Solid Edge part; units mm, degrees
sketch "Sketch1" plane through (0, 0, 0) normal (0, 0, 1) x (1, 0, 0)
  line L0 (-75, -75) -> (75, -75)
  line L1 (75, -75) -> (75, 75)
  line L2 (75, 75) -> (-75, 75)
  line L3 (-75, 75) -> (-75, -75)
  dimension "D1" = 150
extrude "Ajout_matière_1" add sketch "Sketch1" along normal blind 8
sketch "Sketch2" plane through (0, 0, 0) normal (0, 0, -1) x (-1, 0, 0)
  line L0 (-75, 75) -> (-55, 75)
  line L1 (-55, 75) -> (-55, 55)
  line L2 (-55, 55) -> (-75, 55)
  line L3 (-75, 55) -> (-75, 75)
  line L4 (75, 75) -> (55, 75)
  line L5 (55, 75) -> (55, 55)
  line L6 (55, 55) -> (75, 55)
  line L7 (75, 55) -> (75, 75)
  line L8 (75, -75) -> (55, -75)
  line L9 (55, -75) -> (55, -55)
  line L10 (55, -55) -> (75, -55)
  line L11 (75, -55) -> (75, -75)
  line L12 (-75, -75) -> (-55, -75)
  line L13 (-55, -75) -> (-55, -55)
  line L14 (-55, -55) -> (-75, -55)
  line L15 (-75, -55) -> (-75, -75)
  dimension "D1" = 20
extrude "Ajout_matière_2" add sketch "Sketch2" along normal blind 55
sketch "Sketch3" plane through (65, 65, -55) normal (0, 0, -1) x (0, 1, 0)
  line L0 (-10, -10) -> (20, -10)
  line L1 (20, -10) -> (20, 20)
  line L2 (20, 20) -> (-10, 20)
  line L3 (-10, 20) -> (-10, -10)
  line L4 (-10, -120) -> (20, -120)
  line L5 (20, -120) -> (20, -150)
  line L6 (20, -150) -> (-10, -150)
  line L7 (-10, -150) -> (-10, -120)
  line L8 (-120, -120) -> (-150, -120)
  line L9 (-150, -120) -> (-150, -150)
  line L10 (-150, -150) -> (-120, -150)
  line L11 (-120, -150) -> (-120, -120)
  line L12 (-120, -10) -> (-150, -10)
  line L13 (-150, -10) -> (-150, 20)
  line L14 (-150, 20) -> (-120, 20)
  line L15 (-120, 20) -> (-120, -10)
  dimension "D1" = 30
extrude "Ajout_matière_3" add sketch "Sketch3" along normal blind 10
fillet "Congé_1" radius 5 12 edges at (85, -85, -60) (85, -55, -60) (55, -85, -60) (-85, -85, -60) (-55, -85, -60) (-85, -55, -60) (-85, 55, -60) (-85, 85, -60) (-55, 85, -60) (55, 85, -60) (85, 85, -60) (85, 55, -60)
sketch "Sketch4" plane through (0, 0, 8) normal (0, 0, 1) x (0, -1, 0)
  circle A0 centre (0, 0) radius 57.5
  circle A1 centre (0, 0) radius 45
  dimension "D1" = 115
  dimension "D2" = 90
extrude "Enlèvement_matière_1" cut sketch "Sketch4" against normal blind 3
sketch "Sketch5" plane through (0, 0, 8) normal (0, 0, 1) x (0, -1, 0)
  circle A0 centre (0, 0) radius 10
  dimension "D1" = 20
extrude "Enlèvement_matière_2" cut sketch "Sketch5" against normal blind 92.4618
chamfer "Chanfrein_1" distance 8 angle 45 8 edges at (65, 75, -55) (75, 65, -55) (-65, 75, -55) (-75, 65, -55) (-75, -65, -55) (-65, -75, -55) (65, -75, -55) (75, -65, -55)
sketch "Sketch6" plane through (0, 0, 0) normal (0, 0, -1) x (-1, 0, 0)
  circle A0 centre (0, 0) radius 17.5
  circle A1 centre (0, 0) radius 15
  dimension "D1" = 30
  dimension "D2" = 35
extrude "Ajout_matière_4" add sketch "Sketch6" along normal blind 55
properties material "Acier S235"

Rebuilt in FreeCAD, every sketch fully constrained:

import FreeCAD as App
import Part
import Sketcher
Q = App.Units.Quantity


def edges_at(feature, points):
    """Names of the edges that pass closest to the given points."""
    edges = feature.Shape.Edges
    near = lambda p: min(range(len(edges)), key=lambda i: edges[i].distToShape(Part.Vertex(*p))[0])
    return sorted({f"Edge{near(p) + 1}" for p in points})

doc = App.newDocument("Part")
body = doc.addObject("PartDesign::Body", "Body")

sketch1 = doc.addObject("Sketcher::SketchObject", "Sketch")
body.addObject(sketch1)
sketch1.AttachmentSupport = (doc.XY_Plane, [""])
sketch1.MapMode = "FlatFace"
sketch1.addGeometry(Part.LineSegment(App.Vector(-75, 75, 0), App.Vector(-75, -75, 0)), False)
sketch1.addGeometry(Part.LineSegment(App.Vector(-75, -75, 0), App.Vector(75, -75, 0)), False)
sketch1.addGeometry(Part.LineSegment(App.Vector(75, -75, 0), App.Vector(75, 75, 0)), False)
sketch1.addGeometry(Part.LineSegment(App.Vector(75, 75, 0), App.Vector(-75, 75, 0)), False)
sketch1.addConstraint(Sketcher.Constraint("Coincident", 0, 2, 1, 1))
sketch1.addConstraint(Sketcher.Constraint("Coincident", 1, 2, 2, 1))
sketch1.addConstraint(Sketcher.Constraint("Coincident", 2, 2, 3, 1))
sketch1.addConstraint(Sketcher.Constraint("Coincident", 3, 2, 0, 1))
sketch1.addConstraint(Sketcher.Constraint("Vertical", 0))
sketch1.addConstraint(Sketcher.Constraint("Horizontal", 1))
sketch1.addConstraint(Sketcher.Constraint("Vertical", 2))
sketch1.addConstraint(Sketcher.Constraint("Horizontal", 3))
sketch1.addConstraint(Sketcher.Constraint("Symmetric", 0, 2, 2, 2, -1, 1))
sketch1.addConstraint(Sketcher.Constraint("Equal", 3, 0))
sketch1.addConstraint(Sketcher.Constraint("DistanceX", 0, 2, -1, 1, Q("75 mm")))
pad1 = doc.addObject("PartDesign::Pad", "Pad")
body.addObject(pad1)
pad1.Profile = sketch1
pad1.Length = 8

sketch2 = doc.addObject("Sketcher::SketchObject", "Sketch001")
body.addObject(sketch2)
sketch2.AttachmentSupport = (doc.XY_Plane, [""])
sketch2.MapMode = "FlatFace"
sketch2.addGeometry(Part.LineSegment(App.Vector(55, 75, 0), App.Vector(75, 75, 0)), False)
sketch2.addGeometry(Part.LineSegment(App.Vector(75, 75, 0), App.Vector(75, 55, 0)), False)
sketch2.addGeometry(Part.LineSegment(App.Vector(75, 55, 0), App.Vector(55, 55, 0)), False)
sketch2.addGeometry(Part.LineSegment(App.Vector(55, 55, 0), App.Vector(55, 75, 0)), False)
sketch2.addGeometry(Part.LineSegment(App.Vector(-75, 55, 0), App.Vector(-75, 75, 0)), False)
sketch2.addGeometry(Part.LineSegment(App.Vector(-75, 75, 0), App.Vector(-55, 75, 0)), False)
sketch2.addGeometry(Part.LineSegment(App.Vector(-55, 75, 0), App.Vector(-55, 55, 0)), False)
sketch2.addGeometry(Part.LineSegment(App.Vector(-55, 55, 0), App.Vector(-75, 55, 0)), False)
sketch2.addGeometry(Part.LineSegment(App.Vector(-55, -75, 0), App.Vector(-75, -75, 0)), False)
sketch2.addGeometry(Part.LineSegment(App.Vector(-75, -75, 0), App.Vector(-75, -55, 0)), False)
sketch2.addGeometry(Part.LineSegment(App.Vector(-75, -55, 0), App.Vector(-55, -55, 0)), False)
sketch2.addGeometry(Part.LineSegment(App.Vector(-55, -55, 0), App.Vector(-55, -75, 0)), False)
sketch2.addGeometry(Part.LineSegment(App.Vector(75, -55, 0), App.Vector(75, -75, 0)), False)
sketch2.addGeometry(Part.LineSegment(App.Vector(75, -75, 0), App.Vector(55, -75, 0)), False)
sketch2.addGeometry(Part.LineSegment(App.Vector(55, -75, 0), App.Vector(55, -55, 0)), False)
sketch2.addGeometry(Part.LineSegment(App.Vector(55, -55, 0), App.Vector(75, -55, 0)), False)
sketch2.addConstraint(Sketcher.Constraint("Coincident", 0, 2, 1, 1))
sketch2.addConstraint(Sketcher.Constraint("Coincident", 1, 2, 2, 1))
sketch2.addConstraint(Sketcher.Constraint("Coincident", 2, 2, 3, 1))
sketch2.addConstraint(Sketcher.Constraint("Coincident", 3, 2, 0, 1))
sketch2.addConstraint(Sketcher.Constraint("Coincident", 4, 2, 5, 1))
sketch2.addConstraint(Sketcher.Constraint("Coincident", 5, 2, 6, 1))
sketch2.addConstraint(Sketcher.Constraint("Coincident", 6, 2, 7, 1))
sketch2.addConstraint(Sketcher.Constraint("Coincident", 7, 2, 4, 1))
sketch2.addConstraint(Sketcher.Constraint("Coincident", 8, 2, 9, 1))
sketch2.addConstraint(Sketcher.Constraint("Coincident", 9, 2, 10, 1))
sketch2.addConstraint(Sketcher.Constraint("Coincident", 10, 2, 11, 1))
sketch2.addConstraint(Sketcher.Constraint("Coincident", 11, 2, 8, 1))
sketch2.addConstraint(Sketcher.Constraint("Coincident", 12, 2, 13, 1))
sketch2.addConstraint(Sketcher.Constraint("Coincident", 13, 2, 14, 1))
sketch2.addConstraint(Sketcher.Constraint("Coincident", 14, 2, 15, 1))
sketch2.addConstraint(Sketcher.Constraint("Coincident", 15, 2, 12, 1))
sketch2.addConstraint(Sketcher.Constraint("Horizontal", 0))
sketch2.addConstraint(Sketcher.Constraint("Vertical", 1))
sketch2.addConstraint(Sketcher.Constraint("Horizontal", 2))
sketch2.addConstraint(Sketcher.Constraint("Vertical", 3))
sketch2.addConstraint(Sketcher.Constraint("Vertical", 4))
sketch2.addConstraint(Sketcher.Constraint("Horizontal", 5))
sketch2.addConstraint(Sketcher.Constraint("Vertical", 6))
sketch2.addConstraint(Sketcher.Constraint("Horizontal", 7))
sketch2.addConstraint(Sketcher.Constraint("Horizontal", 8))
sketch2.addConstraint(Sketcher.Constraint("Vertical", 9))
sketch2.addConstraint(Sketcher.Constraint("Horizontal", 10))
sketch2.addConstraint(Sketcher.Constraint("Vertical", 11))
sketch2.addConstraint(Sketcher.Constraint("Vertical", 12))
sketch2.addConstraint(Sketcher.Constraint("Horizontal", 13))
sketch2.addConstraint(Sketcher.Constraint("Vertical", 14))
sketch2.addConstraint(Sketcher.Constraint("Horizontal", 15))
sketch2.addConstraint(Sketcher.Constraint("Symmetric", 0, 2, 8, 2, -1, 1))
sketch2.addConstraint(Sketcher.Constraint("Symmetric", 2, 2, 10, 2, -1, 1))
sketch2.addConstraint(Sketcher.Constraint("Symmetric", 4, 2, 12, 2, -1, 1))
sketch2.addConstraint(Sketcher.Constraint("Symmetric", 6, 2, 14, 2, -1, 1))
sketch2.addConstraint(Sketcher.Constraint("Symmetric", 0, 2, 4, 2, -2))
sketch2.addConstraint(Sketcher.Constraint("Symmetric", 2, 2, 6, 2, -2))
sketch2.addConstraint(Sketcher.Constraint("Equal", 15, 1))
sketch2.addConstraint(Sketcher.Constraint("DistanceY", -1, 1, 1, 2, Q("55 mm")))
sketch2.addConstraint(Sketcher.Constraint("DistanceX", -1, 1, 2, 2, Q("55 mm")))
sketch2.addConstraint(Sketcher.Constraint("DistanceX", 0, 1, 0, 2, Q("20 mm")))
pad2 = doc.addObject("PartDesign::Pad", "Pad001")
body.addObject(pad2)
pad2.Profile = sketch2
pad2.Length = 55
pad2.Reversed = True

sketch3 = doc.addObject("Sketcher::SketchObject", "Sketch002")
body.addObject(sketch3)
sketch3.AttachmentSupport = (doc.XY_Plane, [""])
sketch3.MapMode = "FlatFace"
sketch3.AttachmentOffset = App.Placement(App.Vector(0, 0, -55), App.Rotation())
sketch3.addGeometry(Part.LineSegment(App.Vector(85, 55, 0), App.Vector(55, 55, 0)), False)
sketch3.addGeometry(Part.LineSegment(App.Vector(55, 55, 0), App.Vector(55, 85, 0)), False)
sketch3.addGeometry(Part.LineSegment(App.Vector(55, 85, 0), App.Vector(85, 85, 0)), False)
sketch3.addGeometry(Part.LineSegment(App.Vector(85, 85, 0), App.Vector(85, 55, 0)), False)
sketch3.addGeometry(Part.LineSegment(App.Vector(-55, 85, 0), App.Vector(-55, 55, 0)), False)
sketch3.addGeometry(Part.LineSegment(App.Vector(-55, 55, 0), App.Vector(-85, 55, 0)), False)
sketch3.addGeometry(Part.LineSegment(App.Vector(-85, 55, 0), App.Vector(-85, 85, 0)), False)
sketch3.addGeometry(Part.LineSegment(App.Vector(-85, 85, 0), App.Vector(-55, 85, 0)), False)
sketch3.addGeometry(Part.LineSegment(App.Vector(-85, -55, 0), App.Vector(-55, -55, 0)), False)
sketch3.addGeometry(Part.LineSegment(App.Vector(-55, -55, 0), App.Vector(-55, -85, 0)), False)
sketch3.addGeometry(Part.LineSegment(App.Vector(-55, -85, 0), App.Vector(-85, -85, 0)), False)
sketch3.addGeometry(Part.LineSegment(App.Vector(-85, -85, 0), App.Vector(-85, -55, 0)), False)
sketch3.addGeometry(Part.LineSegment(App.Vector(55, -85, 0), App.Vector(55, -55, 0)), False)
sketch3.addGeometry(Part.LineSegment(App.Vector(55, -55, 0), App.Vector(85, -55, 0)), False)
sketch3.addGeometry(Part.LineSegment(App.Vector(85, -55, 0), App.Vector(85, -85, 0)), False)
sketch3.addGeometry(Part.LineSegment(App.Vector(85, -85, 0), App.Vector(55, -85, 0)), False)
sketch3.addConstraint(Sketcher.Constraint("Coincident", 0, 2, 1, 1))
sketch3.addConstraint(Sketcher.Constraint("Coincident", 1, 2, 2, 1))
sketch3.addConstraint(Sketcher.Constraint("Coincident", 2, 2, 3, 1))
sketch3.addConstraint(Sketcher.Constraint("Coincident", 3, 2, 0, 1))
sketch3.addConstraint(Sketcher.Constraint("Coincident", 4, 2, 5, 1))
sketch3.addConstraint(Sketcher.Constraint("Coincident", 5, 2, 6, 1))
sketch3.addConstraint(Sketcher.Constraint("Coincident", 6, 2, 7, 1))
sketch3.addConstraint(Sketcher.Constraint("Coincident", 7, 2, 4, 1))
sketch3.addConstraint(Sketcher.Constraint("Coincident", 8, 2, 9, 1))
sketch3.addConstraint(Sketcher.Constraint("Coincident", 9, 2, 10, 1))
sketch3.addConstraint(Sketcher.Constraint("Coincident", 10, 2, 11, 1))
sketch3.addConstraint(Sketcher.Constraint("Coincident", 11, 2, 8, 1))
sketch3.addConstraint(Sketcher.Constraint("Coincident", 12, 2, 13, 1))
sketch3.addConstraint(Sketcher.Constraint("Coincident", 13, 2, 14, 1))
sketch3.addConstraint(Sketcher.Constraint("Coincident", 14, 2, 15, 1))
sketch3.addConstraint(Sketcher.Constraint("Coincident", 15, 2, 12, 1))
sketch3.addConstraint(Sketcher.Constraint("Horizontal", 0))
sketch3.addConstraint(Sketcher.Constraint("Vertical", 1))
sketch3.addConstraint(Sketcher.Constraint("Horizontal", 2))
sketch3.addConstraint(Sketcher.Constraint("Vertical", 3))
sketch3.addConstraint(Sketcher.Constraint("Vertical", 4))
sketch3.addConstraint(Sketcher.Constraint("Horizontal", 5))
sketch3.addConstraint(Sketcher.Constraint("Vertical", 6))
sketch3.addConstraint(Sketcher.Constraint("Horizontal", 7))
sketch3.addConstraint(Sketcher.Constraint("Horizontal", 8))
sketch3.addConstraint(Sketcher.Constraint("Vertical", 9))
sketch3.addConstraint(Sketcher.Constraint("Horizontal", 10))
sketch3.addConstraint(Sketcher.Constraint("Vertical", 11))
sketch3.addConstraint(Sketcher.Constraint("Vertical", 12))
sketch3.addConstraint(Sketcher.Constraint("Horizontal", 13))
sketch3.addConstraint(Sketcher.Constraint("Vertical", 14))
sketch3.addConstraint(Sketcher.Constraint("Horizontal", 15))
sketch3.addConstraint(Sketcher.Constraint("Symmetric", 0, 2, 8, 2, -1, 1))
sketch3.addConstraint(Sketcher.Constraint("Symmetric", 2, 2, 10, 2, -1, 1))
sketch3.addConstraint(Sketcher.Constraint("Symmetric", 4, 2, 12, 2, -1, 1))
sketch3.addConstraint(Sketcher.Constraint("Symmetric", 6, 2, 14, 2, -1, 1))
sketch3.addConstraint(Sketcher.Constraint("Symmetric", 0, 2, 4, 2, -2))
sketch3.addConstraint(Sketcher.Constraint("Symmetric", 2, 2, 6, 2, -2))
sketch3.addConstraint(Sketcher.Constraint("Equal", 15, 1))
sketch3.addConstraint(Sketcher.Constraint("DistanceX", 0, 2, 0, 1, Q("30 mm")))
sketch3.addConstraint(Sketcher.Constraint("DistanceX", -1, 1, 0, 2, Q("55 mm")))
sketch3.addConstraint(Sketcher.Constraint("DistanceY", -1, 1, 0, 2, Q("55 mm")))
pad3 = doc.addObject("PartDesign::Pad", "Pad002")
body.addObject(pad3)
pad3.Profile = sketch3
pad3.Length = 10
pad3.Reversed = True
doc.recompute()

fillet = doc.addObject("PartDesign::Fillet", "Fillet")
body.addObject(fillet)
fillet.Base = (pad3, edges_at(pad3, [
    (85, -85, -60),
    (85, -55, -60),
    (55, -85, -60),
    (-85, -85, -60),
    (-55, -85, -60),
    (-85, -55, -60),
    (-85, 55, -60),
    (-85, 85, -60),
    (-55, 85, -60),
    (55, 85, -60),
    (85, 85, -60),
    (85, 55, -60),
]))
fillet.Radius = 5

sketch4 = doc.addObject("Sketcher::SketchObject", "Sketch003")
body.addObject(sketch4)
sketch4.AttachmentSupport = (doc.XY_Plane, [""])
sketch4.MapMode = "FlatFace"
sketch4.AttachmentOffset = App.Placement(App.Vector(0, 0, 8), App.Rotation())
sketch4.addGeometry(Part.Circle(App.Vector(0, 0, 0), App.Vector(0, 0, 1), 57.5), False)
sketch4.addGeometry(Part.Circle(App.Vector(0, 0, 0), App.Vector(0, 0, 1), 45), False)
sketch4.addConstraint(Sketcher.Constraint("Coincident", 0, 3, -1, 1))
sketch4.addConstraint(Sketcher.Constraint("Coincident", 1, 3, -1, 1))
sketch4.addConstraint(Sketcher.Constraint("Diameter", 0, Q("115 mm")))
sketch4.addConstraint(Sketcher.Constraint("Diameter", 1, Q("90 mm")))
pocket1 = doc.addObject("PartDesign::Pocket", "Pocket")
body.addObject(pocket1)
pocket1.Profile = sketch4
pocket1.Length = 3

sketch5 = doc.addObject("Sketcher::SketchObject", "Sketch004")
body.addObject(sketch5)
sketch5.AttachmentSupport = (doc.XY_Plane, [""])
sketch5.MapMode = "FlatFace"
sketch5.AttachmentOffset = App.Placement(App.Vector(0, 0, 8), App.Rotation())
sketch5.addGeometry(Part.Circle(App.Vector(0, 0, 0), App.Vector(0, 0, 1), 10), False)
sketch5.addConstraint(Sketcher.Constraint("Coincident", 0, 3, -1, 1))
sketch5.addConstraint(Sketcher.Constraint("Diameter", 0, Q("20 mm")))
pocket2 = doc.addObject("PartDesign::Pocket", "Pocket001")
body.addObject(pocket2)
pocket2.Profile = sketch5
pocket2.Length = 92.4618
doc.recompute()

chamfer = doc.addObject("PartDesign::Chamfer", "Chamfer")
body.addObject(chamfer)
chamfer.Base = (pocket2, edges_at(pocket2, [
    (65, 75, -55),
    (75, 65, -55),
    (-65, 75, -55),
    (-75, 65, -55),
    (-75, -65, -55),
    (-65, -75, -55),
    (65, -75, -55),
    (75, -65, -55),
]))
chamfer.Size = 8

sketch6 = doc.addObject("Sketcher::SketchObject", "Sketch005")
body.addObject(sketch6)
sketch6.AttachmentSupport = (doc.XY_Plane, [""])
sketch6.MapMode = "FlatFace"
sketch6.addGeometry(Part.Circle(App.Vector(0, 0, 0), App.Vector(0, 0, 1), 17.5), False)
sketch6.addGeometry(Part.Circle(App.Vector(0, 0, 0), App.Vector(0, 0, 1), 15), False)
sketch6.addConstraint(Sketcher.Constraint("Coincident", 0, 3, -1, 1))
sketch6.addConstraint(Sketcher.Constraint("Coincident", 1, 3, -1, 1))
sketch6.addConstraint(Sketcher.Constraint("Diameter", 0, Q("35 mm")))
sketch6.addConstraint(Sketcher.Constraint("Diameter", 1, Q("30 mm")))
pad4 = doc.addObject("PartDesign::Pad", "Pad003")
body.addObject(pad4)
pad4.Profile = sketch6
pad4.Length = 55
pad4.Reversed = True

doc.recompute()
